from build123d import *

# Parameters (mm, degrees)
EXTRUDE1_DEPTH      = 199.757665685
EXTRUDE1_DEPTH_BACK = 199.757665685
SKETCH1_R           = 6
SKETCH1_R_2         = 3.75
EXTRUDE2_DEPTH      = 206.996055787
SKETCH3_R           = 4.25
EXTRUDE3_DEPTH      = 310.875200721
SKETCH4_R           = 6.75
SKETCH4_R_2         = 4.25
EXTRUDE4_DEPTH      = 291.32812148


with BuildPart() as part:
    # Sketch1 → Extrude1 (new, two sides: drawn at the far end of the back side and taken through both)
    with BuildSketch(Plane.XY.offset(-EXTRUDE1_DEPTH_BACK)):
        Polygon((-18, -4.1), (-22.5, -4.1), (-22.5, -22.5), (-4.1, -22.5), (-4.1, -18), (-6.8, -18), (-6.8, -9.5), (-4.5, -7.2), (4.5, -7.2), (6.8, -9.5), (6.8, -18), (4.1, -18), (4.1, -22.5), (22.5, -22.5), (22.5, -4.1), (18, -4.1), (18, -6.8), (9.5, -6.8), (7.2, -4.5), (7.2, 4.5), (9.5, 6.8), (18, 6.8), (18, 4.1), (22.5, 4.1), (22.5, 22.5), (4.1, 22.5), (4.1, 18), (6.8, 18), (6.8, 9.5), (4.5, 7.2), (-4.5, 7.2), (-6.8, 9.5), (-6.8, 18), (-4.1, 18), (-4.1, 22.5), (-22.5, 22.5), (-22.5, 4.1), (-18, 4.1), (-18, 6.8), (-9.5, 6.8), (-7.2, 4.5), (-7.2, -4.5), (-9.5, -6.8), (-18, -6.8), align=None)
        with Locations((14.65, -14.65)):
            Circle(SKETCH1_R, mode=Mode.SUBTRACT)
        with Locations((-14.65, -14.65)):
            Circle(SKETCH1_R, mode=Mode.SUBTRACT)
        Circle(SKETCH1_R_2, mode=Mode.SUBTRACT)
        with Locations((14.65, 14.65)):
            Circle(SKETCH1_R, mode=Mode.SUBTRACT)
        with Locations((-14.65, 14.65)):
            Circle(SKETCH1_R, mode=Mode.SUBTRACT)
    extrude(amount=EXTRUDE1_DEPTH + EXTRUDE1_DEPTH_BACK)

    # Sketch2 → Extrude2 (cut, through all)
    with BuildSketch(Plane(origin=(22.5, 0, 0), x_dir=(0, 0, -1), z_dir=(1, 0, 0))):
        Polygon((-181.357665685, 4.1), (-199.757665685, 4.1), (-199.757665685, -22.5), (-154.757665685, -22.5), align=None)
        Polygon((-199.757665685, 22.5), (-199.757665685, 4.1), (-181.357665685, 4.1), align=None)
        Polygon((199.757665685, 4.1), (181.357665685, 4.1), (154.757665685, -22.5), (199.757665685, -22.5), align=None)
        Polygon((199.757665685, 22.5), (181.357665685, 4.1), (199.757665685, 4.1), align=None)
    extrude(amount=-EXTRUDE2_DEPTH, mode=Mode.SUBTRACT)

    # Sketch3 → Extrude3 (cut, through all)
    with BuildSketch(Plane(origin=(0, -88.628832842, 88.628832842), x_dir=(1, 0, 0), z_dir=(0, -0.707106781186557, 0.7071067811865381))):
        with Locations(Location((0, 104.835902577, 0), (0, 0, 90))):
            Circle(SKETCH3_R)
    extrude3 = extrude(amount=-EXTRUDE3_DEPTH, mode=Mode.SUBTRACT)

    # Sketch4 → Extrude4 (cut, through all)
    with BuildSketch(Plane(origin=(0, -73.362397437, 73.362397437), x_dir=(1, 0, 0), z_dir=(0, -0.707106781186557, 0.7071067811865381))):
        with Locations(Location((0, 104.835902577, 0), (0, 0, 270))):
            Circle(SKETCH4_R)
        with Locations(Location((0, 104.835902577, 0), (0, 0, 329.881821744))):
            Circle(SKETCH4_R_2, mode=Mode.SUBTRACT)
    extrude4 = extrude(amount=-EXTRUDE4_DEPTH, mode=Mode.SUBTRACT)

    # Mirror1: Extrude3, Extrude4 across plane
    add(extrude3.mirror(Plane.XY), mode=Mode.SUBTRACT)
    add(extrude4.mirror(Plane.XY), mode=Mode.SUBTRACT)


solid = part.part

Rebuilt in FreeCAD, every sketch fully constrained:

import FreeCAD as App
import Part
import Sketcher
from FreeCAD import Vector


def add_polygon(sketch, points):
    """Adds a closed chain of lines whose ends are joined by coincident constraints."""
    first, n = sketch.GeometryCount, len(points)
    for a, b in zip(points, points[1:] + points[:1]):
        sketch.addGeometry(Part.LineSegment(App.Vector(*a, 0), App.Vector(*b, 0)), False)
    for i in range(n):
        sketch.addConstraint(Sketcher.Constraint("Coincident", first + i, 2, first + (i + 1) % n, 1))

doc = App.newDocument("Part")
params = doc.addObject("Spreadsheet::Sheet", "Params")
for row, (alias, value) in enumerate([
    ("sketch1_diameter", "12 mm"),
    ("sketch1_diameter2", "7.5 mm"),
    ("sketch1_width", "9 mm"),
    ("sketch1_width2", "4.5 mm"),
    ("sketch1_width3", "18.4 mm"),
    ("pad1_length", "199.757666 mm"),
    ("pad1_length2", "199.757666 mm"),
    ("sketch2_width", "45 mm"),
    ("sketch3_diameter", "8.5 mm"),
    ("sketch4_diameter", "13.5 mm"),
    ("sketch4_diameter2", "8.5 mm"),
], start=1):
    params.set(f"A{row}", alias)
    params.set(f"B{row}", "=" + value)
    params.setAlias(f"B{row}", alias)

body = doc.addObject("PartDesign::Body", "Body")

sketch1 = doc.addObject("Sketcher::SketchObject", "Sketch")
body.addObject(sketch1)
sketch1.AttachmentSupport = (doc.XY_Plane, [""])
sketch1.MapMode = "FlatFace"
add_polygon(sketch1, [(-18, -4.1), (-22.5, -4.1), (-22.5, -22.5), (-4.1, -22.5), (-4.1, -18), (-6.8, -18), (-6.8, -9.5), (-4.5, -7.2), (4.5, -7.2), (6.8, -9.5), (6.8, -18), (4.1, -18), (4.1, -22.5), (22.5, -22.5), (22.5, -4.1), (18, -4.1), (18, -6.8), (9.5, -6.8), (7.2, -4.5), (7.2, 4.5), (9.5, 6.8), (18, 6.8), (18, 4.1), (22.5, 4.1), (22.5, 22.5), (4.1, 22.5), (4.1, 18), (6.8, 18), (6.8, 9.5), (4.5, 7.2), (-4.5, 7.2), (-6.8, 9.5), (-6.8, 18), (-4.1, 18), (-4.1, 22.5), (-22.5, 22.5), (-22.5, 4.1), (-18, 4.1), (-18, 6.8), (-9.5, 6.8), (-7.2, 4.5), (-7.2, -4.5), (-9.5, -6.8), (-18, -6.8)])
sketch1.addGeometry(Part.Circle(Vector(-14.65, -14.65, 0), Vector(0, 0, 1), 6), False)
sketch1.addGeometry(Part.Circle(Vector(14.65, -14.65, 0), Vector(0, 0, 1), 6), False)
sketch1.addGeometry(Part.Circle(Vector(-14.65, 14.65, 0), Vector(0, 0, 1), 6), False)
sketch1.addGeometry(Part.Circle(Vector(0, 0, 0), Vector(0, 0, 1), 3.75), False)
sketch1.addGeometry(Part.Circle(Vector(14.65, 14.65, 0), Vector(0, 0, 1), 6), False)
sketch1.addConstraint([
    Sketcher.Constraint("Horizontal", 0),
    Sketcher.Constraint("Vertical", 1),
    Sketcher.Constraint("Horizontal", 2),
    Sketcher.Constraint("Vertical", 3),
    Sketcher.Constraint("Horizontal", 4),
    Sketcher.Constraint("Vertical", 5),
    Sketcher.Constraint("Horizontal", 7),
    Sketcher.Constraint("Vertical", 9),
    Sketcher.Constraint("Horizontal", 10),
    Sketcher.Constraint("Vertical", 11),
    Sketcher.Constraint("Horizontal", 12),
    Sketcher.Constraint("Vertical", 13),
    Sketcher.Constraint("Horizontal", 14),
    Sketcher.Constraint("Vertical", 15),
    Sketcher.Constraint("Horizontal", 16),
    Sketcher.Constraint("Vertical", 18),
    Sketcher.Constraint("Horizontal", 20),
    Sketcher.Constraint("Vertical", 21),
    Sketcher.Constraint("Horizontal", 22),
    Sketcher.Constraint("Vertical", 23),
    Sketcher.Constraint("Horizontal", 24),
    Sketcher.Constraint("Vertical", 25),
    Sketcher.Constraint("Horizontal", 26),
    Sketcher.Constraint("Vertical", 27),
    Sketcher.Constraint("Horizontal", 29),
    Sketcher.Constraint("Vertical", 31),
    Sketcher.Constraint("Horizontal", 32),
    Sketcher.Constraint("Vertical", 33),
    Sketcher.Constraint("Horizontal", 34),
    Sketcher.Constraint("Vertical", 35),
    Sketcher.Constraint("Horizontal", 36),
    Sketcher.Constraint("Vertical", 37),
    Sketcher.Constraint("Horizontal", 38),
    Sketcher.Constraint("Vertical", 40),
    Sketcher.Constraint("Horizontal", 42),
    Sketcher.Constraint("Vertical", 43),
    Sketcher.Constraint("Coincident", 47, 3, -1, 1),
    Sketcher.Constraint("Equal", 44, 45),
    Sketcher.Constraint("Equal", 45, 46),
    Sketcher.Constraint("Equal", 46, 48),
    Sketcher.Constraint("Symmetric", 45, 3, 46, 3, -1, 1),
    Sketcher.Constraint("Symmetric", 44, 3, 48, 3, -1, 1),
    Sketcher.Constraint("Symmetric", 0, 2, 22, 2, -1, 1),
    Sketcher.Constraint("Symmetric", 2, 2, 24, 2, -1, 1),
    Sketcher.Constraint("Symmetric", 4, 2, 26, 2, -1, 1),
    Sketcher.Constraint("Symmetric", 6, 2, 28, 2, -1, 1),
    Sketcher.Constraint("Symmetric", 8, 2, 30, 2, -1, 1),
    Sketcher.Constraint("Symmetric", 10, 2, 32, 2, -1, 1),
    Sketcher.Constraint("Symmetric", 12, 2, 34, 2, -1, 1),
    Sketcher.Constraint("Symmetric", 14, 2, 36, 2, -1, 1),
    Sketcher.Constraint("Symmetric", 16, 2, 38, 2, -1, 1),
    Sketcher.Constraint("Symmetric", 17, 2, 39, 2, -1, 1),
    Sketcher.Constraint("Symmetric", 19, 2, 41, 2, -1, 1),
    Sketcher.Constraint("Symmetric", 44, 3, 45, 3, -2),
    Sketcher.Constraint("Symmetric", 5, 2, 8, 2, -2),
    Sketcher.Constraint("Symmetric", 3, 2, 10, 2, -2),
    Sketcher.Constraint("Symmetric", 1, 2, 12, 2, -2),
    Sketcher.Constraint("Symmetric", 21, 2, 36, 2, -2),
    Sketcher.Constraint("Symmetric", 19, 2, 38, 2, -2),
    Sketcher.Constraint("Perpendicular", 6, 8),
    Sketcher.Constraint("Parallel", 8, 17),
    Sketcher.Constraint("Perpendicular", 17, 19),
    Sketcher.Constraint("Parallel", 19, 28),
    Sketcher.Constraint("Perpendicular", 28, 30),
    Sketcher.Constraint("Perpendicular", 39, 41),
    Sketcher.Constraint("Horizontal", 18, 2, 39, 2),
    Sketcher.Constraint("Vertical", 37, 2, 42, 2),
    Sketcher.Constraint("Equal", 34, 1),
    Sketcher.Constraint("Equal", 36, 3),
    Sketcher.Constraint("Equal", 42, 5),
    Sketcher.Constraint("Equal", 32, 15),
    Sketcher.Constraint("Equal", 29, 18),
    Sketcher.Constraint("Equal", 8, 17),
    Sketcher.Constraint("Diameter", 44, 12.0),
    Sketcher.Constraint("Diameter", 47, 7.5),
    Sketcher.Constraint("DistanceX", 7, 1, 7, 2, 9.0),
    Sketcher.Constraint("DistanceX", 0, 2, 0, 1, 4.5),
    Sketcher.Constraint("DistanceX", 2, 1, 2, 2, 18.4),
    Sketcher.Constraint("DistanceX", 4, 2, 4, 1, 2.7),
    Sketcher.Constraint("DistanceX", 16, 2, 16, 1, 8.5),
    Sketcher.Constraint("DistanceY", 3, 2, -1, 1, 18.0),
    Sketcher.Constraint("DistanceX", 44, 3, 45, 3, 29.3),
    Sketcher.Constraint("DistanceY", 44, 3, 46, 3, 29.3),
])
sketch1.setExpression("Constraints[117]", "Params.sketch1_diameter")
sketch1.setExpression("Constraints[118]", "Params.sketch1_diameter2")
sketch1.setExpression("Constraints[119]", "Params.sketch1_width")
sketch1.setExpression("Constraints[120]", "Params.sketch1_width2")
sketch1.setExpression("Constraints[121]", "Params.sketch1_width3")
pad1 = doc.addObject("PartDesign::Pad", "Pad")
body.addObject(pad1)
pad1.Profile = sketch1
pad1.Type = "TwoLengths"
pad1.setExpression("Length", "Params.pad1_length")
pad1.setExpression("Length2", "Params.pad1_length2")

sketch2 = doc.addObject("Sketcher::SketchObject", "Sketch001")
body.addObject(sketch2)
sketch2.AttachmentSupport = (doc.YZ_Plane, [""])
sketch2.MapMode = "FlatFace"
sketch2.AttachmentOffset = App.Placement(Vector(0, 0, 22.5), App.Rotation())
add_polygon(sketch2, [(-22.5, 199.757666), (-22.5, 154.757666), (22.5, 199.757666)])
add_polygon(sketch2, [(-22.5, -154.757666), (-22.5, -199.757666), (22.5, -199.757666)])
sketch2.addConstraint([
    Sketcher.Constraint("Vertical", 0),
    Sketcher.Constraint("Horizontal", 2),
    Sketcher.Constraint("Vertical", 3),
    Sketcher.Constraint("Horizontal", 4),
    Sketcher.Constraint("Symmetric", 1, 2, 3, 2, -1, 1),
    Sketcher.Constraint("Symmetric", 0, 2, 5, 2, -1),
    Sketcher.Constraint("Perpendicular", 1, 5),
    Sketcher.Constraint("Vertical", 1, 2, 4, 2),
    Sketcher.Constraint("DistanceX", 2, 2, 2, 1, 45.0),
    Sketcher.Constraint("DistanceY", 3, 2, 0, 2, 354.515331),
])
sketch2.setExpression("Constraints[14]", "Params.sketch2_width")
pocket1 = doc.addObject("PartDesign::Pocket", "Pocket")
body.addObject(pocket1)
pocket1.Profile = sketch2
pocket1.Type = "ThroughAll"

sketch3 = doc.addObject("Sketcher::SketchObject", "Sketch002")
body.addObject(sketch3)
sketch3.Placement = App.Placement(Vector(0, -88.628833, 88.628833), App.Rotation(Vector(1, 0, 0), Vector(0, 0.707106781, 0.707106781), Vector(0, -0.707106781, 0.707106781), "ZXY"))
sketch3.addGeometry(Part.Circle(Vector(0, 104.835903, 0), Vector(0, 0, 1), 4.25), False)
sketch3.addConstraint([
    Sketcher.Constraint("PointOnObject", 0, 3, -2),
    Sketcher.Constraint("Diameter", 0, 8.5),
    Sketcher.Constraint("DistanceY", -1, 1, 0, 3, 104.835903),
])
sketch3.setExpression("Constraints[1]", "Params.sketch3_diameter")
pocket2 = doc.addObject("PartDesign::Pocket", "Pocket001")
body.addObject(pocket2)
pocket2.Profile = sketch3
pocket2.Type = "ThroughAll"

sketch4 = doc.addObject("Sketcher::SketchObject", "Sketch003")
body.addObject(sketch4)
sketch4.Placement = App.Placement(Vector(0, -73.362397, 73.362397), App.Rotation(Vector(1, 0, 0), Vector(0, 0.707106781, 0.707106781), Vector(0, -0.707106781, 0.707106781), "ZXY"))
sketch4.addGeometry([
    Part.Circle(Vector(0, 104.835903, 0), Vector(0, 0, 1), 6.75),
    Part.Circle(Vector(0, 104.835903, 0), Vector(0, 0, 1), 4.25),
], False)
sketch4.addConstraint([
    Sketcher.Constraint("Coincident", 1, 3, 0, 3),
    Sketcher.Constraint("PointOnObject", 0, 3, -2),
    Sketcher.Constraint("Diameter", 0, 13.5),
    Sketcher.Constraint("Diameter", 1, 8.5),
    Sketcher.Constraint("DistanceY", -1, 1, 0, 3, 104.835903),
])
sketch4.setExpression("Constraints[2]", "Params.sketch4_diameter")
sketch4.setExpression("Constraints[3]", "Params.sketch4_diameter2")
pocket3 = doc.addObject("PartDesign::Pocket", "Pocket002")
body.addObject(pocket3)
pocket3.Profile = sketch4
pocket3.Type = "ThroughAll"
doc.recompute()

mirrored = doc.addObject("PartDesign::Mirrored", "Mirrored")
body.addObject(mirrored)
mirrored.Originals = [pocket2, pocket3]
mirrored.MirrorPlane = (doc.XY_Plane, [""])
body.Tip = mirrored

doc.recompute()
